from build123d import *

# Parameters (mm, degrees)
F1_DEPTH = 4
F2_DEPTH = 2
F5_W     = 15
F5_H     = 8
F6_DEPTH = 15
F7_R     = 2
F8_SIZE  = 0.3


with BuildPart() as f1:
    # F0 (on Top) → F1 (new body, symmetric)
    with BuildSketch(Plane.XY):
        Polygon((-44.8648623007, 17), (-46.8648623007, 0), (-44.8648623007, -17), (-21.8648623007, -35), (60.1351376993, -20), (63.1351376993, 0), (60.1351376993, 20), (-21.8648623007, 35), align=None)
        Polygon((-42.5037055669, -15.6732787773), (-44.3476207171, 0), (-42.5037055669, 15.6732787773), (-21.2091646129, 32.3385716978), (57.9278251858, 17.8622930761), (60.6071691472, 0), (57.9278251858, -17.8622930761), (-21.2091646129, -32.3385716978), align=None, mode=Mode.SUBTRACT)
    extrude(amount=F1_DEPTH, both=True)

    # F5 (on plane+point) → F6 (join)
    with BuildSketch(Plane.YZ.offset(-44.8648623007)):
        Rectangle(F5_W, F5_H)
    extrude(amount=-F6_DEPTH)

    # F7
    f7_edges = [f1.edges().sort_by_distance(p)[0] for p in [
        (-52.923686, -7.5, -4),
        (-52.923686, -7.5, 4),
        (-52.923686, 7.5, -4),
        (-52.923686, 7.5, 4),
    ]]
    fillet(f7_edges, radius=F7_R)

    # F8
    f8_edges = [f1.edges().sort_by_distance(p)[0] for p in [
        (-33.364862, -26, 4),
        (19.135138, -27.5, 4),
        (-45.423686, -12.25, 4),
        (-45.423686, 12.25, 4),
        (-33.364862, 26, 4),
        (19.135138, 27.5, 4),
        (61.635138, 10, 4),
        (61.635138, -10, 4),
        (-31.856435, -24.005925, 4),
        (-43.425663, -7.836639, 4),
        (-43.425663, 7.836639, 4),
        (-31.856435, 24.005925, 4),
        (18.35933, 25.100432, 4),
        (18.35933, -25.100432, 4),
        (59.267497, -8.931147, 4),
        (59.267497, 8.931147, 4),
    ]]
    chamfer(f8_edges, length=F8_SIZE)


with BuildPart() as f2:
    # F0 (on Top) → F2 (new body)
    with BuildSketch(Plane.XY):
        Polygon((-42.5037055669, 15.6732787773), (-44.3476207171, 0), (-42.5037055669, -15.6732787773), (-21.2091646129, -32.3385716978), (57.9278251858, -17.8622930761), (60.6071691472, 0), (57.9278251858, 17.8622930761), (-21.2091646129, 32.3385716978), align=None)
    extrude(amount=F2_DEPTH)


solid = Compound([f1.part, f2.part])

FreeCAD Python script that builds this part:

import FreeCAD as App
import Part
import Sketcher
Q = App.Units.Quantity


def edges_at(feature, points):
    """Names of the edges that pass closest to the given points."""
    edges = feature.Shape.Edges
    near = lambda p: min(range(len(edges)), key=lambda i: edges[i].distToShape(Part.Vertex(*p))[0])
    return sorted({f"Edge{near(p) + 1}" for p in points})


def add_polygon(sketch, points):
    """Adds a closed chain of lines whose ends are joined by coincident constraints."""
    first, n = sketch.GeometryCount, len(points)
    for a, b in zip(points, points[1:] + points[:1]):
        sketch.addGeometry(Part.LineSegment(App.Vector(*a, 0), App.Vector(*b, 0)), False)
    for i in range(n):
        sketch.addConstraint(Sketcher.Constraint("Coincident", first + i, 2, first + (i + 1) % n, 1))

doc = App.newDocument("Part")
body = doc.addObject("PartDesign::Body", "Body")

sketch1 = body.newObject("Sketcher::SketchObject", "Sketch")
sketch1.AttachmentSupport = (doc.getObject("XY_Plane"), [""])
sketch1.MapMode = "FlatFace"
add_polygon(sketch1, [(-45, 17), (-47, 0), (-45, -17), (-22, -35), (60, -20), (63, 0), (60, 20), (-22, 35)])
add_polygon(sketch1, [(-21, -32), (-43, -16), (-44, 0), (-43, 16), (-21, 32), (58, 18), (61, 0), (58, -18)])
sketch1.addConstraint([
    Sketcher.Constraint("Symmetric", 3, 2, 5, 2, -1),
    Sketcher.Constraint("Symmetric", 2, 2, 6, 2, -1),
    Sketcher.Constraint("Symmetric", 1, 2, 7, 2, -1),
    Sketcher.Constraint("Symmetric", 8, 2, 10, 2, -1),
    Sketcher.Constraint("Symmetric", 12, 2, 14, 2, -1),
    Sketcher.Constraint("Symmetric", 11, 2, 15, 2, -1),
    Sketcher.Constraint("PointOnObject", 0, 2, -1),
    Sketcher.Constraint("PointOnObject", 4, 2, -1),
    Sketcher.Constraint("PointOnObject", 9, 2, -1),
    Sketcher.Constraint("PointOnObject", 13, 2, -1),
    Sketcher.Constraint("Parallel", 2, 8),
    Sketcher.Constraint("Parallel", 1, 9),
    Sketcher.Constraint("Parallel", 6, 12),
    Sketcher.Constraint("Parallel", 5, 13),
    Sketcher.Constraint("DistanceY", 1, 2, -1, 1, Q("17 mm")),
    Sketcher.Constraint("DistanceY", 2, 2, -1, 1, Q("35 mm")),
    Sketcher.Constraint("DistanceY", 3, 2, -1, 1, Q("20 mm")),
    Sketcher.Constraint("DistanceX", 0, 2, 1, 2, Q("2 mm")),
    Sketcher.Constraint("DistanceX", 1, 2, 2, 2, Q("23 mm")),
    Sketcher.Constraint("DistanceX", 2, 2, 3, 2, Q("82 mm")),
    Sketcher.Constraint("DistanceX", 3, 2, 4, 2, Q("3 mm")),
    Sketcher.Constraint("Distance", 9, Q("15.781372 mm")),
    Sketcher.Constraint("DistanceX", 9, 2, -1, 1, Q("44.347621 mm")),
    Sketcher.Constraint("DistanceY", -1, 1, 11, 2, Q("32.338572 mm")),
    Sketcher.Constraint("DistanceX", -1, 1, 13, 2, Q("60.607169 mm")),
    Sketcher.Constraint("DistanceX", 0, 2, 9, 2, Q("2.517242 mm")),
])
pad1 = body.newObject("PartDesign::Pad", "Pad")
pad1.Profile = sketch1
pad1.Length = 8
pad1.Midplane = True

sketch2 = body.newObject("Sketcher::SketchObject", "Sketch001")
sketch2.AttachmentSupport = (doc.getObject("YZ_Plane"), [""])
sketch2.MapMode = "FlatFace"
sketch2.AttachmentOffset = App.Placement(App.Vector(0, 0, -44.864862), App.Rotation())
add_polygon(sketch2, [(-8, 4), (-8, -4), (8, -4), (8, 4)])
sketch2.addConstraint([
    Sketcher.Constraint("Vertical", 0),
    Sketcher.Constraint("Horizontal", 1),
    Sketcher.Constraint("Vertical", 2),
    Sketcher.Constraint("Horizontal", 3),
    Sketcher.Constraint("Symmetric", 0, 2, 2, 2, -1, 1),
    Sketcher.Constraint("DistanceX", 1, 1, 1, 2, Q("15 mm")),
    Sketcher.Constraint("DistanceY", 0, 2, 0, 1, Q("8 mm")),
])
pad2 = body.newObject("PartDesign::Pad", "Pad001")
pad2.Profile = sketch2
pad2.Length = 15
pad2.Reversed = True
doc.recompute()

fillet = body.newObject("PartDesign::Fillet", "Fillet")
fillet.Base = (pad2, edges_at(pad2, [
    (-52.924, -7.5, -4),
    (-52.924, -7.5, 4),
    (-52.924, 7.5, -4),
    (-52.924, 7.5, 4),
]))
fillet.Radius = 2
doc.recompute()

chamfer = body.newObject("PartDesign::Chamfer", "Chamfer")
chamfer.Base = (fillet, edges_at(fillet, [
    (-33.365, -26, 4),
    (19.135, -27.5, 4),
    (-45.541, -11.25, 4),
    (-45.541, 11.25, 4),
    (-33.365, 26, 4),
    (19.135, 27.5, 4),
    (61.635, 10, 4),
    (61.635, -10, 4),
    (-31.856, -24.006, 4),
    (-43.426, -7.837, 4),
    (-43.426, 7.837, 4),
    (-31.856, 24.006, 4),
    (18.359, 25.1, 4),
    (18.359, -25.1, 4),
    (59.267, -8.931, 4),
    (59.267, 8.931, 4),
]))
chamfer.Size = 0.3
body2 = doc.addObject("PartDesign::Body", "Body001")

sketch3 = body2.newObject("Sketcher::SketchObject", "Sketch002")
sketch3.AttachmentSupport = (doc.getObject("XY_Plane001"), [""])
sketch3.MapMode = "FlatFace"
add_polygon(sketch3, [(-43, 16), (-44, 0), (-43, -16), (-21, -32), (58, -18), (61, 0), (58, 18), (-21, 32)])
sketch3.addConstraint([
    Sketcher.Constraint("Symmetric", 3, 2, 5, 2, -1),
    Sketcher.Constraint("Symmetric", 2, 2, 6, 2, -1),
    Sketcher.Constraint("Symmetric", 1, 2, 7, 2, -1),
    Sketcher.Constraint("PointOnObject", 0, 2, -1),
    Sketcher.Constraint("PointOnObject", 4, 2, -1),
    Sketcher.Constraint("Distance", 0, Q("15.781372 mm")),
    Sketcher.Constraint("DistanceX", 0, 2, -1, 1, Q("44.347621 mm")),
    Sketcher.Constraint("DistanceY", 1, 2, -1, 1, Q("15.673279 mm")),
    Sketcher.Constraint("DistanceY", 2, 2, -1, 1, Q("32.338572 mm")),
    Sketcher.Constraint("DistanceX", -1, 1, 4, 2, Q("60.607169 mm")),
    Sketcher.Constraint("DistanceX", 1, 2, 2, 2, Q("21.294541 mm")),
    Sketcher.Constraint("DistanceX", 2, 2, 3, 2, Q("79.13699 mm")),
    Sketcher.Constraint("DistanceY", 2, 2, 3, 2, Q("14.476279 mm")),
])
pad3 = body2.newObject("PartDesign::Pad", "Pad002")
pad3.Profile = sketch3
pad3.Length = 2

doc.recompute()
